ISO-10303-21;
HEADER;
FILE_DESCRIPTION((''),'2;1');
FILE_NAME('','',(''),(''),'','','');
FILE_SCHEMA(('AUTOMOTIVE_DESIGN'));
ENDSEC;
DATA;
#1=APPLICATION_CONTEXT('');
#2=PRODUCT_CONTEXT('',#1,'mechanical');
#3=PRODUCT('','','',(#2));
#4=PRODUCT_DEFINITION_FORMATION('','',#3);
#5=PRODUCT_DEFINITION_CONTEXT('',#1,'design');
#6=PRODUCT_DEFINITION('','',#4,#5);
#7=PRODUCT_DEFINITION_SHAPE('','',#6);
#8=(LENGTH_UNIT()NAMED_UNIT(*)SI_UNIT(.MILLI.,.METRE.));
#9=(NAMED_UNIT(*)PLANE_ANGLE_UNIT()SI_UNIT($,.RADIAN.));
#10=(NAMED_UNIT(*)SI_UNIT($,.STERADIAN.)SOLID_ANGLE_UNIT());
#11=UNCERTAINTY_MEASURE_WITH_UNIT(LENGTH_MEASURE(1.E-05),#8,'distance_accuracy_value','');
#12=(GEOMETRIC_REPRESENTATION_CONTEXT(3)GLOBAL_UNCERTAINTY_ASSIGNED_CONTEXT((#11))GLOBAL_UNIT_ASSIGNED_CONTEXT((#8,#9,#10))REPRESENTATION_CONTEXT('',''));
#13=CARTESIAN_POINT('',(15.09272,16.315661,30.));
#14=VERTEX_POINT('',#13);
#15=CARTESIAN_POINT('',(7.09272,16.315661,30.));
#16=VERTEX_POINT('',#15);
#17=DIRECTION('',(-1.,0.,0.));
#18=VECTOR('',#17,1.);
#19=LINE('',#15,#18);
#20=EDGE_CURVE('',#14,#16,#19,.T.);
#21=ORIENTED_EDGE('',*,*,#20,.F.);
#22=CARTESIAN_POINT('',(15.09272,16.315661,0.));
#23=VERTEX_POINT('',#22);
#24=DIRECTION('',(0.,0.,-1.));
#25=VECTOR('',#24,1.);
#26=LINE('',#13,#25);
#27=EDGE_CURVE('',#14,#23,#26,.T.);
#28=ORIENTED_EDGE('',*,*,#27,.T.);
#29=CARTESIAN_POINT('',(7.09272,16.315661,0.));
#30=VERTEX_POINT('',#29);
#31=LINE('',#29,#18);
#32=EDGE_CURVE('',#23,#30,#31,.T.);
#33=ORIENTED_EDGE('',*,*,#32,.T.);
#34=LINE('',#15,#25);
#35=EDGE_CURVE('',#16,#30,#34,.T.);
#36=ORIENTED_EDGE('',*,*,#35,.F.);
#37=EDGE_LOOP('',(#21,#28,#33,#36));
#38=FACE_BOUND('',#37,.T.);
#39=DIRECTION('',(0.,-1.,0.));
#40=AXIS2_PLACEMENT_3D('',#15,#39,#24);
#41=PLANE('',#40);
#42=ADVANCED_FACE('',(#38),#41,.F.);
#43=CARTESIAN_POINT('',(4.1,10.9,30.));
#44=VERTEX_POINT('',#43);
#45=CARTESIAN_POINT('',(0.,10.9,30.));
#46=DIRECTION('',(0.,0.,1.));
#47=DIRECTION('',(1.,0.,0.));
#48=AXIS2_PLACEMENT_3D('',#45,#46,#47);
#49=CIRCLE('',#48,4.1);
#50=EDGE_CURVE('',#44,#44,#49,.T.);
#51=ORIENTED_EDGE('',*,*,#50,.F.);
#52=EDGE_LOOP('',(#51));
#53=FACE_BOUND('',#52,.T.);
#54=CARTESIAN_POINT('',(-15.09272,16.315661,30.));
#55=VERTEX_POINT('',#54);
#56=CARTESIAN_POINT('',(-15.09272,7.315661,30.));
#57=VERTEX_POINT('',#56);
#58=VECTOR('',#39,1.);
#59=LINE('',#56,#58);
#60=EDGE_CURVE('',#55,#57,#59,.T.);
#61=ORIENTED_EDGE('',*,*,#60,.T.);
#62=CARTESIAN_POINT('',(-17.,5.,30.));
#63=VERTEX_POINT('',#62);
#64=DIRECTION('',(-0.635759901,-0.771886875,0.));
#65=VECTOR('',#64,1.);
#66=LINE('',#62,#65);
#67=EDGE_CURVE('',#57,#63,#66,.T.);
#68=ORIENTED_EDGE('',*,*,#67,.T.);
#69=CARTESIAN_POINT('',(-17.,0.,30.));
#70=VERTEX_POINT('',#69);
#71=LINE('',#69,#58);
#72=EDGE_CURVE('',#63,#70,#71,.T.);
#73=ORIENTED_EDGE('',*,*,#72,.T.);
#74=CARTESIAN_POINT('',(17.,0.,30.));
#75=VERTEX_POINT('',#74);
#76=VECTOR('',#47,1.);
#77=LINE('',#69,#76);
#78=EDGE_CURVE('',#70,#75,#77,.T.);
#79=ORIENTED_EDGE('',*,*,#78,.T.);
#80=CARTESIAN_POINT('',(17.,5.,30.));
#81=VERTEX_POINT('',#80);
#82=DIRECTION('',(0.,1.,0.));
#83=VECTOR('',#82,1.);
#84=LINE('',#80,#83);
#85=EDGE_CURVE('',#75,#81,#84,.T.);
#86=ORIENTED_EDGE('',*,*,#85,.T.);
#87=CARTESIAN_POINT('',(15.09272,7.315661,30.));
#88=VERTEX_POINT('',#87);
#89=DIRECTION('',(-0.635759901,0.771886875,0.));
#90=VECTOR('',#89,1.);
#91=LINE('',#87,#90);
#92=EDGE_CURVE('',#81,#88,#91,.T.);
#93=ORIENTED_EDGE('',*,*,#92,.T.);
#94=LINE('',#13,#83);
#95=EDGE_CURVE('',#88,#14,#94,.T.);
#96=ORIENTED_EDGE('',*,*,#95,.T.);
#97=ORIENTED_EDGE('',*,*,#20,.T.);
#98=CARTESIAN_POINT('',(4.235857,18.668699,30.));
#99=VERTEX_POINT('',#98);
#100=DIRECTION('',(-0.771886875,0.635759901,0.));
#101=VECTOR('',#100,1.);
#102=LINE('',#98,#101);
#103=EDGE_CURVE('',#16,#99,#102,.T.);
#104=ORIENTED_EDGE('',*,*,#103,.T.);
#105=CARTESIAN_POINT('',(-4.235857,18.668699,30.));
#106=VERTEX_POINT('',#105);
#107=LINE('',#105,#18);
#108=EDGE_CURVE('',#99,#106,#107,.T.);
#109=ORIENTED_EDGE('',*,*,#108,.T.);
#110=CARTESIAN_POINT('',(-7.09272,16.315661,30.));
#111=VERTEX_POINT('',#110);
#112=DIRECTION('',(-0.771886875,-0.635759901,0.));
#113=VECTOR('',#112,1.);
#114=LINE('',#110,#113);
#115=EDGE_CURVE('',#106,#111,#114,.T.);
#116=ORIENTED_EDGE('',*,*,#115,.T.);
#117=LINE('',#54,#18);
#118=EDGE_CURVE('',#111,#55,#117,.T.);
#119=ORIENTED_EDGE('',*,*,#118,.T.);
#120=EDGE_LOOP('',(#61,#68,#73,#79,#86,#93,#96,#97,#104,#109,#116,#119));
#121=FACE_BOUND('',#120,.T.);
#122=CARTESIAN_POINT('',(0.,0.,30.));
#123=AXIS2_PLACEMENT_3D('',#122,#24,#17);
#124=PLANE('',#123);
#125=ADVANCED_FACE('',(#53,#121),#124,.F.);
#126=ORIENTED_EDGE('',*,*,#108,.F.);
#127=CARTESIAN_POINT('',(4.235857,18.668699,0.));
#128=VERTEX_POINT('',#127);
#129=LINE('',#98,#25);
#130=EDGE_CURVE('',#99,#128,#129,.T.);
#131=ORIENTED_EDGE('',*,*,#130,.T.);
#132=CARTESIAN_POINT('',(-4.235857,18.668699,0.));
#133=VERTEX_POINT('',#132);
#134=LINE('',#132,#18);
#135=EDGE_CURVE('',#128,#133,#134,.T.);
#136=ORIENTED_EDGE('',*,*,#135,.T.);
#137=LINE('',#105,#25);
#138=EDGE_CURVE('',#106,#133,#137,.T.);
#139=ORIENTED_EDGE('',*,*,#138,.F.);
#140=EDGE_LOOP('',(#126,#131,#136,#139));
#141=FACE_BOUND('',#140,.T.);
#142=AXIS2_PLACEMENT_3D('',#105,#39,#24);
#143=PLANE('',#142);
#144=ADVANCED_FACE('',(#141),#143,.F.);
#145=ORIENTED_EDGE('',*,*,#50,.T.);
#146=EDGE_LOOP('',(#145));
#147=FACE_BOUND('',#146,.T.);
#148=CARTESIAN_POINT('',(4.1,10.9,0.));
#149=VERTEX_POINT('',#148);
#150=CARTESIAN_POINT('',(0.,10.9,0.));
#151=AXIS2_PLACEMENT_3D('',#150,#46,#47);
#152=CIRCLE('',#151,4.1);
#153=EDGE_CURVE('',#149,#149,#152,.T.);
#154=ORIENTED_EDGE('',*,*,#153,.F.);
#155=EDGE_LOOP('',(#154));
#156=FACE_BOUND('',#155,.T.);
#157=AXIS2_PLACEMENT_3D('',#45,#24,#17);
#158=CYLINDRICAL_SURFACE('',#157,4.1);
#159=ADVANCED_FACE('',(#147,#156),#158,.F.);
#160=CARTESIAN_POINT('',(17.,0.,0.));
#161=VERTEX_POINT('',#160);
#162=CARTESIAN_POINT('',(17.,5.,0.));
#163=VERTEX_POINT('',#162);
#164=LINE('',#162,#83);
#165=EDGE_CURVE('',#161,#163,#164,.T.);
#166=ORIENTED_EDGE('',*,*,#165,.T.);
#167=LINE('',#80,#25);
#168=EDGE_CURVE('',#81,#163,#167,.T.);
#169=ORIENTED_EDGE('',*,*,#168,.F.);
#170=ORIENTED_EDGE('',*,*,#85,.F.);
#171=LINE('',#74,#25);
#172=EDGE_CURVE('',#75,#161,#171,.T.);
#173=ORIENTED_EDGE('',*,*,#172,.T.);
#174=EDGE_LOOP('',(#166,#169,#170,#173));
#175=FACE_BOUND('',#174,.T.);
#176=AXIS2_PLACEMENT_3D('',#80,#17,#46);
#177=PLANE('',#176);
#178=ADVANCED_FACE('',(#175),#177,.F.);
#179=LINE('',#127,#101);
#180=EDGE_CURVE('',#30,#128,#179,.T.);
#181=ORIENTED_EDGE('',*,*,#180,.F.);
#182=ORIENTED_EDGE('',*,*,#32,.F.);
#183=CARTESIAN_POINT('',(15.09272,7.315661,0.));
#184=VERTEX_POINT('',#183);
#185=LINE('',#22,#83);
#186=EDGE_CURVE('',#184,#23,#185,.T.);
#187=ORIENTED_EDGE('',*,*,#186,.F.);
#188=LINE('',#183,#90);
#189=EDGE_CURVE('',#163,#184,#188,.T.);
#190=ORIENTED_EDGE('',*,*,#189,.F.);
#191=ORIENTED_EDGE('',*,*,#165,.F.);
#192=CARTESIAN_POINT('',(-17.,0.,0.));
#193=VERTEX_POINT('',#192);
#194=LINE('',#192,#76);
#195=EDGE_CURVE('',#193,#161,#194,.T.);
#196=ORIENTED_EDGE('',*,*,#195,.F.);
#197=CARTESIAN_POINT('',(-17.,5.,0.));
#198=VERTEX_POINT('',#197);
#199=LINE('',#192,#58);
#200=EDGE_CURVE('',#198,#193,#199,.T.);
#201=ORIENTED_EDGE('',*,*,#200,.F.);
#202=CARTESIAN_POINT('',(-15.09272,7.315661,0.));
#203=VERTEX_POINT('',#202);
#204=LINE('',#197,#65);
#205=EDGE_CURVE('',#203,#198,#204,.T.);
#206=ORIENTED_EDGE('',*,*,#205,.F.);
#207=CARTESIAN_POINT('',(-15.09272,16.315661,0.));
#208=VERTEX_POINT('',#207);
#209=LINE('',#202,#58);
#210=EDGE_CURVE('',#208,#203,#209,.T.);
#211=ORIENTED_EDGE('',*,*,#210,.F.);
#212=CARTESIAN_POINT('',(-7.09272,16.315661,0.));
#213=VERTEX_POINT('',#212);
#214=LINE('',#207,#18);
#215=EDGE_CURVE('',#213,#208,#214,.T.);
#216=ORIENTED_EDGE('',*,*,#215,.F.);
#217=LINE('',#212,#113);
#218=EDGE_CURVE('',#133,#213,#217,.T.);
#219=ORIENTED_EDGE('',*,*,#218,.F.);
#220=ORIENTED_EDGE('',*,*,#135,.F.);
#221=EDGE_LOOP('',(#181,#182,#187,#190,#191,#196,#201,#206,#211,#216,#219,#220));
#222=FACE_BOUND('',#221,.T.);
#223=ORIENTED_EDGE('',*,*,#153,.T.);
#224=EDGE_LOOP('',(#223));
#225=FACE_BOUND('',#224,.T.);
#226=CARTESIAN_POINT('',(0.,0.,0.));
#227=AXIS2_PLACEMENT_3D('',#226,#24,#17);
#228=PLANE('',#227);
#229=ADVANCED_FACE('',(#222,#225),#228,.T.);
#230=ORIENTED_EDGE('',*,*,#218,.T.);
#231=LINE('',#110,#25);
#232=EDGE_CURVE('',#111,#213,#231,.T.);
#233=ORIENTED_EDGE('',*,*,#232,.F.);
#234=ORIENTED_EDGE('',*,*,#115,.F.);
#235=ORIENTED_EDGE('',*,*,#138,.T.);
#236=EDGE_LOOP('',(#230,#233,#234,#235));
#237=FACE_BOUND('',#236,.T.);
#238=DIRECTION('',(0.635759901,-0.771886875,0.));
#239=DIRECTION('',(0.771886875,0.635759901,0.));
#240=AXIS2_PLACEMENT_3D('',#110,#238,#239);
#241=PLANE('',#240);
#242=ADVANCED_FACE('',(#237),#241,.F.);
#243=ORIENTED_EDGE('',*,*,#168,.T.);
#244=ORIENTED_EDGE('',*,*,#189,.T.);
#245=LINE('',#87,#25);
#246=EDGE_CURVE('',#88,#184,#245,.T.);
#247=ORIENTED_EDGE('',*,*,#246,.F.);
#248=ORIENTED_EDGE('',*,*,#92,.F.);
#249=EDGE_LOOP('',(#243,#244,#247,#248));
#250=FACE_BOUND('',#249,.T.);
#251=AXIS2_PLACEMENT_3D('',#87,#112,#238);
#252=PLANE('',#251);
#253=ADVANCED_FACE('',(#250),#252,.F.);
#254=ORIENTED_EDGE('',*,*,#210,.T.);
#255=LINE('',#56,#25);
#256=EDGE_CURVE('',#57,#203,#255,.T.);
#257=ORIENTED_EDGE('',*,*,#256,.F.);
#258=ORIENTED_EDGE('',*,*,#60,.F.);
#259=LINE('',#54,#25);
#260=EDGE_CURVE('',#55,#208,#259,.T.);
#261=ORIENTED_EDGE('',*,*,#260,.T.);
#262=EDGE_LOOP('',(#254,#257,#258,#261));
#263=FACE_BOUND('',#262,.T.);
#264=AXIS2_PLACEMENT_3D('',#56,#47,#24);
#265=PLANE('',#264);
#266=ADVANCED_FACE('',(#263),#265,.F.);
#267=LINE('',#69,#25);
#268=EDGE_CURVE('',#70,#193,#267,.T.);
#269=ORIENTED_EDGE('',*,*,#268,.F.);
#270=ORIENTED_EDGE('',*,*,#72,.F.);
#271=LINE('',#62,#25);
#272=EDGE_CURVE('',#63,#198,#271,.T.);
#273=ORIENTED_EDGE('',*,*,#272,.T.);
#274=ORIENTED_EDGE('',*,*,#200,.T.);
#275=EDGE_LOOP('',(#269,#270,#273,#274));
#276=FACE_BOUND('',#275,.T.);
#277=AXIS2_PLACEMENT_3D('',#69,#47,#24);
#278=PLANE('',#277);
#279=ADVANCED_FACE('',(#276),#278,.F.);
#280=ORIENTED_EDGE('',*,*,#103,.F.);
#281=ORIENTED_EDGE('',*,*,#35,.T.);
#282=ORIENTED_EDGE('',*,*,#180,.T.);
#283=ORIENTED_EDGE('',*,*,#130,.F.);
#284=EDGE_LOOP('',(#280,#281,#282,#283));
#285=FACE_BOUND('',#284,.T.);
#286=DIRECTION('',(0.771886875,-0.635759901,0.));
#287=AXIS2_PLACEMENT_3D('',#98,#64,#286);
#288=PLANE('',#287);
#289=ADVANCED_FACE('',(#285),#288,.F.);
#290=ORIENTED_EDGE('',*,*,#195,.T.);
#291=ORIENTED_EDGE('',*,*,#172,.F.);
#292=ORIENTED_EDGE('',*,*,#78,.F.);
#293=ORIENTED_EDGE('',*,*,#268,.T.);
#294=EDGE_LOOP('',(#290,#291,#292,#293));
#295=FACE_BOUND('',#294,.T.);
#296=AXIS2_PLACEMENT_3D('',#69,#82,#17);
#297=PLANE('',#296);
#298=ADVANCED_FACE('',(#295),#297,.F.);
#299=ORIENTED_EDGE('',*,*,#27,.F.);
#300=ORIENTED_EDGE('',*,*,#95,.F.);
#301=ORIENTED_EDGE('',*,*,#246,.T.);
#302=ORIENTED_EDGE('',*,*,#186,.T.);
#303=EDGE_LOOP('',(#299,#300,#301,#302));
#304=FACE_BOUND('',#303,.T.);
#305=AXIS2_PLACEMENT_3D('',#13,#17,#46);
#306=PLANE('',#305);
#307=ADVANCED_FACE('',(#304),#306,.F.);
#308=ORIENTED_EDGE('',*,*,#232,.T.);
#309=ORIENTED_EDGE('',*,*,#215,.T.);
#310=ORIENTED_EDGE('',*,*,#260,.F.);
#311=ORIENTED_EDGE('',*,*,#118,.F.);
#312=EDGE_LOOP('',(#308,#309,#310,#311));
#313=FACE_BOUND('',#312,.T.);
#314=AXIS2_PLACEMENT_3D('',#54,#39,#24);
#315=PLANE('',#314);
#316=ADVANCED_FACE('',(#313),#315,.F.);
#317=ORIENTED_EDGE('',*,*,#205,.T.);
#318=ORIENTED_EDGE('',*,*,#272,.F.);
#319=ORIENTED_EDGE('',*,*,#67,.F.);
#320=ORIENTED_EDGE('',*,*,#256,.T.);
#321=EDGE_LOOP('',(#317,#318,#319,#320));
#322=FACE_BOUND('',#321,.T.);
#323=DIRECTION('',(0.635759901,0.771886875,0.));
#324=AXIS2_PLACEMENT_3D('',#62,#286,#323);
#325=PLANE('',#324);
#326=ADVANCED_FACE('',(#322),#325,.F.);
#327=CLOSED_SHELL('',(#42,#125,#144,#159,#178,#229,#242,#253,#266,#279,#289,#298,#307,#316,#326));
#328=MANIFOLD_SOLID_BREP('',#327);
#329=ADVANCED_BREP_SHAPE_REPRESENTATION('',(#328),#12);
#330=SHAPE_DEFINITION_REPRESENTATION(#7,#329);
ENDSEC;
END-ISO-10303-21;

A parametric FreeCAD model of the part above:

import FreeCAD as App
import Part
import Sketcher

V = App.Vector
Q = App.Units.Quantity

doc = App.newDocument("Part")
body = doc.addObject("PartDesign::Body", "Body")

# Sketch on XY plane
sketch1 = body.newObject("Sketcher::SketchObject", "Sketch")
sketch1.AttachmentSupport = (doc.getObject("XY_Plane"), [""])
sketch1.MapMode = "FlatFace"
sketch1.addGeometry(Part.LineSegment(V(-17, 0, 0), V(17, 0, 0)), False)
sketch1.addGeometry(Part.LineSegment(V(17, 0, 0), V(17, 5, 0)), False)
sketch1.addGeometry(Part.LineSegment(V(17, 5, 0), V(15.1, 7.3, 0)), False)
sketch1.addGeometry(Part.LineSegment(V(15.1, 7.3, 0), V(15.1, 16.3, 0)), False)
sketch1.addGeometry(Part.LineSegment(V(15.1, 16.3, 0), V(7.1, 16.3, 0)), False)
sketch1.addGeometry(Part.LineSegment(V(7.1, 16.3, 0), V(4.2, 18.7, 0)), False)
sketch1.addGeometry(Part.LineSegment(V(4.2, 18.7, 0), V(-4.2, 18.7, 0)), False)
sketch1.addGeometry(Part.LineSegment(V(-4.2, 18.7, 0), V(-7.1, 16.3, 0)), False)
sketch1.addGeometry(Part.LineSegment(V(-7.1, 16.3, 0), V(-15.1, 16.3, 0)), False)
sketch1.addGeometry(Part.LineSegment(V(-15.1, 16.3, 0), V(-15.1, 7.3, 0)), False)
sketch1.addGeometry(Part.LineSegment(V(-15.1, 7.3, 0), V(-17, 5, 0)), False)
sketch1.addGeometry(Part.LineSegment(V(-17, 5, 0), V(-17, 0, 0)), False)
sketch1.addGeometry(Part.Circle(V(0, 10.9, 0), V(0, 0, 1), 4.1), False)
sketch1.addConstraint(Sketcher.Constraint("Coincident", 0, 2, 1, 1))
sketch1.addConstraint(Sketcher.Constraint("Coincident", 1, 2, 2, 1))
sketch1.addConstraint(Sketcher.Constraint("Coincident", 2, 2, 3, 1))
sketch1.addConstraint(Sketcher.Constraint("Coincident", 3, 2, 4, 1))
sketch1.addConstraint(Sketcher.Constraint("Coincident", 4, 2, 5, 1))
sketch1.addConstraint(Sketcher.Constraint("Coincident", 5, 2, 6, 1))
sketch1.addConstraint(Sketcher.Constraint("Coincident", 6, 2, 7, 1))
sketch1.addConstraint(Sketcher.Constraint("Coincident", 7, 2, 8, 1))
sketch1.addConstraint(Sketcher.Constraint("Coincident", 8, 2, 9, 1))
sketch1.addConstraint(Sketcher.Constraint("Coincident", 9, 2, 10, 1))
sketch1.addConstraint(Sketcher.Constraint("Coincident", 10, 2, 11, 1))
sketch1.addConstraint(Sketcher.Constraint("Coincident", 11, 2, 0, 1))
sketch1.addConstraint(Sketcher.Constraint("Horizontal", 0))
sketch1.addConstraint(Sketcher.Constraint("Vertical", 1))
sketch1.addConstraint(Sketcher.Constraint("Vertical", 3))
sketch1.addConstraint(Sketcher.Constraint("Horizontal", 4))
sketch1.addConstraint(Sketcher.Constraint("Horizontal", 6))
sketch1.addConstraint(Sketcher.Constraint("Horizontal", 8))
sketch1.addConstraint(Sketcher.Constraint("Vertical", 9))
sketch1.addConstraint(Sketcher.Constraint("Vertical", 11))
sketch1.addConstraint(Sketcher.Constraint("Symmetric", 0, 2, 11, 2, -1, 1))
sketch1.addConstraint(Sketcher.Constraint("Symmetric", 4, 2, 7, 2, -2))
sketch1.addConstraint(Sketcher.Constraint("Symmetric", 2, 2, 9, 2, -2))
sketch1.addConstraint(Sketcher.Constraint("PointOnObject", 12, 3, -2))
sketch1.addConstraint(Sketcher.Constraint("Perpendicular", 2, 7))
sketch1.addConstraint(Sketcher.Constraint("Perpendicular", 5, 10))
sketch1.addConstraint(Sketcher.Constraint("Horizontal", 1, 2, 10, 2))
sketch1.addConstraint(Sketcher.Constraint("Diameter", 12, Q("8.2 mm")))
sketch1.addConstraint(Sketcher.Constraint("DistanceX", 0, 1, 0, 2, Q("34 mm")))
sketch1.addConstraint(Sketcher.Constraint("DistanceX", 4, 2, 4, 1, Q("8 mm")))
sketch1.addConstraint(Sketcher.Constraint("DistanceY", 1, 1, 1, 2, Q("5 mm")))
sketch1.addConstraint(Sketcher.Constraint("DistanceY", 3, 1, 3, 2, Q("9 mm")))
sketch1.addConstraint(Sketcher.Constraint("Distance", 2, Q("3 mm")))
sketch1.addConstraint(Sketcher.Constraint("DistanceY", -1, 1, 12, 3, Q("10.9 mm")))
sketch1.addConstraint(Sketcher.Constraint("DistanceY", -1, 1, 5, 2, Q("18.668699 mm")))
sketch1.addConstraint(Sketcher.Constraint("DistanceX", 6, 2, 6, 1, Q("8.471714 mm")))
pad1 = body.newObject("PartDesign::Pad", "Pad")
pad1.Profile = sketch1
pad1.Length = 30

doc.recompute()
